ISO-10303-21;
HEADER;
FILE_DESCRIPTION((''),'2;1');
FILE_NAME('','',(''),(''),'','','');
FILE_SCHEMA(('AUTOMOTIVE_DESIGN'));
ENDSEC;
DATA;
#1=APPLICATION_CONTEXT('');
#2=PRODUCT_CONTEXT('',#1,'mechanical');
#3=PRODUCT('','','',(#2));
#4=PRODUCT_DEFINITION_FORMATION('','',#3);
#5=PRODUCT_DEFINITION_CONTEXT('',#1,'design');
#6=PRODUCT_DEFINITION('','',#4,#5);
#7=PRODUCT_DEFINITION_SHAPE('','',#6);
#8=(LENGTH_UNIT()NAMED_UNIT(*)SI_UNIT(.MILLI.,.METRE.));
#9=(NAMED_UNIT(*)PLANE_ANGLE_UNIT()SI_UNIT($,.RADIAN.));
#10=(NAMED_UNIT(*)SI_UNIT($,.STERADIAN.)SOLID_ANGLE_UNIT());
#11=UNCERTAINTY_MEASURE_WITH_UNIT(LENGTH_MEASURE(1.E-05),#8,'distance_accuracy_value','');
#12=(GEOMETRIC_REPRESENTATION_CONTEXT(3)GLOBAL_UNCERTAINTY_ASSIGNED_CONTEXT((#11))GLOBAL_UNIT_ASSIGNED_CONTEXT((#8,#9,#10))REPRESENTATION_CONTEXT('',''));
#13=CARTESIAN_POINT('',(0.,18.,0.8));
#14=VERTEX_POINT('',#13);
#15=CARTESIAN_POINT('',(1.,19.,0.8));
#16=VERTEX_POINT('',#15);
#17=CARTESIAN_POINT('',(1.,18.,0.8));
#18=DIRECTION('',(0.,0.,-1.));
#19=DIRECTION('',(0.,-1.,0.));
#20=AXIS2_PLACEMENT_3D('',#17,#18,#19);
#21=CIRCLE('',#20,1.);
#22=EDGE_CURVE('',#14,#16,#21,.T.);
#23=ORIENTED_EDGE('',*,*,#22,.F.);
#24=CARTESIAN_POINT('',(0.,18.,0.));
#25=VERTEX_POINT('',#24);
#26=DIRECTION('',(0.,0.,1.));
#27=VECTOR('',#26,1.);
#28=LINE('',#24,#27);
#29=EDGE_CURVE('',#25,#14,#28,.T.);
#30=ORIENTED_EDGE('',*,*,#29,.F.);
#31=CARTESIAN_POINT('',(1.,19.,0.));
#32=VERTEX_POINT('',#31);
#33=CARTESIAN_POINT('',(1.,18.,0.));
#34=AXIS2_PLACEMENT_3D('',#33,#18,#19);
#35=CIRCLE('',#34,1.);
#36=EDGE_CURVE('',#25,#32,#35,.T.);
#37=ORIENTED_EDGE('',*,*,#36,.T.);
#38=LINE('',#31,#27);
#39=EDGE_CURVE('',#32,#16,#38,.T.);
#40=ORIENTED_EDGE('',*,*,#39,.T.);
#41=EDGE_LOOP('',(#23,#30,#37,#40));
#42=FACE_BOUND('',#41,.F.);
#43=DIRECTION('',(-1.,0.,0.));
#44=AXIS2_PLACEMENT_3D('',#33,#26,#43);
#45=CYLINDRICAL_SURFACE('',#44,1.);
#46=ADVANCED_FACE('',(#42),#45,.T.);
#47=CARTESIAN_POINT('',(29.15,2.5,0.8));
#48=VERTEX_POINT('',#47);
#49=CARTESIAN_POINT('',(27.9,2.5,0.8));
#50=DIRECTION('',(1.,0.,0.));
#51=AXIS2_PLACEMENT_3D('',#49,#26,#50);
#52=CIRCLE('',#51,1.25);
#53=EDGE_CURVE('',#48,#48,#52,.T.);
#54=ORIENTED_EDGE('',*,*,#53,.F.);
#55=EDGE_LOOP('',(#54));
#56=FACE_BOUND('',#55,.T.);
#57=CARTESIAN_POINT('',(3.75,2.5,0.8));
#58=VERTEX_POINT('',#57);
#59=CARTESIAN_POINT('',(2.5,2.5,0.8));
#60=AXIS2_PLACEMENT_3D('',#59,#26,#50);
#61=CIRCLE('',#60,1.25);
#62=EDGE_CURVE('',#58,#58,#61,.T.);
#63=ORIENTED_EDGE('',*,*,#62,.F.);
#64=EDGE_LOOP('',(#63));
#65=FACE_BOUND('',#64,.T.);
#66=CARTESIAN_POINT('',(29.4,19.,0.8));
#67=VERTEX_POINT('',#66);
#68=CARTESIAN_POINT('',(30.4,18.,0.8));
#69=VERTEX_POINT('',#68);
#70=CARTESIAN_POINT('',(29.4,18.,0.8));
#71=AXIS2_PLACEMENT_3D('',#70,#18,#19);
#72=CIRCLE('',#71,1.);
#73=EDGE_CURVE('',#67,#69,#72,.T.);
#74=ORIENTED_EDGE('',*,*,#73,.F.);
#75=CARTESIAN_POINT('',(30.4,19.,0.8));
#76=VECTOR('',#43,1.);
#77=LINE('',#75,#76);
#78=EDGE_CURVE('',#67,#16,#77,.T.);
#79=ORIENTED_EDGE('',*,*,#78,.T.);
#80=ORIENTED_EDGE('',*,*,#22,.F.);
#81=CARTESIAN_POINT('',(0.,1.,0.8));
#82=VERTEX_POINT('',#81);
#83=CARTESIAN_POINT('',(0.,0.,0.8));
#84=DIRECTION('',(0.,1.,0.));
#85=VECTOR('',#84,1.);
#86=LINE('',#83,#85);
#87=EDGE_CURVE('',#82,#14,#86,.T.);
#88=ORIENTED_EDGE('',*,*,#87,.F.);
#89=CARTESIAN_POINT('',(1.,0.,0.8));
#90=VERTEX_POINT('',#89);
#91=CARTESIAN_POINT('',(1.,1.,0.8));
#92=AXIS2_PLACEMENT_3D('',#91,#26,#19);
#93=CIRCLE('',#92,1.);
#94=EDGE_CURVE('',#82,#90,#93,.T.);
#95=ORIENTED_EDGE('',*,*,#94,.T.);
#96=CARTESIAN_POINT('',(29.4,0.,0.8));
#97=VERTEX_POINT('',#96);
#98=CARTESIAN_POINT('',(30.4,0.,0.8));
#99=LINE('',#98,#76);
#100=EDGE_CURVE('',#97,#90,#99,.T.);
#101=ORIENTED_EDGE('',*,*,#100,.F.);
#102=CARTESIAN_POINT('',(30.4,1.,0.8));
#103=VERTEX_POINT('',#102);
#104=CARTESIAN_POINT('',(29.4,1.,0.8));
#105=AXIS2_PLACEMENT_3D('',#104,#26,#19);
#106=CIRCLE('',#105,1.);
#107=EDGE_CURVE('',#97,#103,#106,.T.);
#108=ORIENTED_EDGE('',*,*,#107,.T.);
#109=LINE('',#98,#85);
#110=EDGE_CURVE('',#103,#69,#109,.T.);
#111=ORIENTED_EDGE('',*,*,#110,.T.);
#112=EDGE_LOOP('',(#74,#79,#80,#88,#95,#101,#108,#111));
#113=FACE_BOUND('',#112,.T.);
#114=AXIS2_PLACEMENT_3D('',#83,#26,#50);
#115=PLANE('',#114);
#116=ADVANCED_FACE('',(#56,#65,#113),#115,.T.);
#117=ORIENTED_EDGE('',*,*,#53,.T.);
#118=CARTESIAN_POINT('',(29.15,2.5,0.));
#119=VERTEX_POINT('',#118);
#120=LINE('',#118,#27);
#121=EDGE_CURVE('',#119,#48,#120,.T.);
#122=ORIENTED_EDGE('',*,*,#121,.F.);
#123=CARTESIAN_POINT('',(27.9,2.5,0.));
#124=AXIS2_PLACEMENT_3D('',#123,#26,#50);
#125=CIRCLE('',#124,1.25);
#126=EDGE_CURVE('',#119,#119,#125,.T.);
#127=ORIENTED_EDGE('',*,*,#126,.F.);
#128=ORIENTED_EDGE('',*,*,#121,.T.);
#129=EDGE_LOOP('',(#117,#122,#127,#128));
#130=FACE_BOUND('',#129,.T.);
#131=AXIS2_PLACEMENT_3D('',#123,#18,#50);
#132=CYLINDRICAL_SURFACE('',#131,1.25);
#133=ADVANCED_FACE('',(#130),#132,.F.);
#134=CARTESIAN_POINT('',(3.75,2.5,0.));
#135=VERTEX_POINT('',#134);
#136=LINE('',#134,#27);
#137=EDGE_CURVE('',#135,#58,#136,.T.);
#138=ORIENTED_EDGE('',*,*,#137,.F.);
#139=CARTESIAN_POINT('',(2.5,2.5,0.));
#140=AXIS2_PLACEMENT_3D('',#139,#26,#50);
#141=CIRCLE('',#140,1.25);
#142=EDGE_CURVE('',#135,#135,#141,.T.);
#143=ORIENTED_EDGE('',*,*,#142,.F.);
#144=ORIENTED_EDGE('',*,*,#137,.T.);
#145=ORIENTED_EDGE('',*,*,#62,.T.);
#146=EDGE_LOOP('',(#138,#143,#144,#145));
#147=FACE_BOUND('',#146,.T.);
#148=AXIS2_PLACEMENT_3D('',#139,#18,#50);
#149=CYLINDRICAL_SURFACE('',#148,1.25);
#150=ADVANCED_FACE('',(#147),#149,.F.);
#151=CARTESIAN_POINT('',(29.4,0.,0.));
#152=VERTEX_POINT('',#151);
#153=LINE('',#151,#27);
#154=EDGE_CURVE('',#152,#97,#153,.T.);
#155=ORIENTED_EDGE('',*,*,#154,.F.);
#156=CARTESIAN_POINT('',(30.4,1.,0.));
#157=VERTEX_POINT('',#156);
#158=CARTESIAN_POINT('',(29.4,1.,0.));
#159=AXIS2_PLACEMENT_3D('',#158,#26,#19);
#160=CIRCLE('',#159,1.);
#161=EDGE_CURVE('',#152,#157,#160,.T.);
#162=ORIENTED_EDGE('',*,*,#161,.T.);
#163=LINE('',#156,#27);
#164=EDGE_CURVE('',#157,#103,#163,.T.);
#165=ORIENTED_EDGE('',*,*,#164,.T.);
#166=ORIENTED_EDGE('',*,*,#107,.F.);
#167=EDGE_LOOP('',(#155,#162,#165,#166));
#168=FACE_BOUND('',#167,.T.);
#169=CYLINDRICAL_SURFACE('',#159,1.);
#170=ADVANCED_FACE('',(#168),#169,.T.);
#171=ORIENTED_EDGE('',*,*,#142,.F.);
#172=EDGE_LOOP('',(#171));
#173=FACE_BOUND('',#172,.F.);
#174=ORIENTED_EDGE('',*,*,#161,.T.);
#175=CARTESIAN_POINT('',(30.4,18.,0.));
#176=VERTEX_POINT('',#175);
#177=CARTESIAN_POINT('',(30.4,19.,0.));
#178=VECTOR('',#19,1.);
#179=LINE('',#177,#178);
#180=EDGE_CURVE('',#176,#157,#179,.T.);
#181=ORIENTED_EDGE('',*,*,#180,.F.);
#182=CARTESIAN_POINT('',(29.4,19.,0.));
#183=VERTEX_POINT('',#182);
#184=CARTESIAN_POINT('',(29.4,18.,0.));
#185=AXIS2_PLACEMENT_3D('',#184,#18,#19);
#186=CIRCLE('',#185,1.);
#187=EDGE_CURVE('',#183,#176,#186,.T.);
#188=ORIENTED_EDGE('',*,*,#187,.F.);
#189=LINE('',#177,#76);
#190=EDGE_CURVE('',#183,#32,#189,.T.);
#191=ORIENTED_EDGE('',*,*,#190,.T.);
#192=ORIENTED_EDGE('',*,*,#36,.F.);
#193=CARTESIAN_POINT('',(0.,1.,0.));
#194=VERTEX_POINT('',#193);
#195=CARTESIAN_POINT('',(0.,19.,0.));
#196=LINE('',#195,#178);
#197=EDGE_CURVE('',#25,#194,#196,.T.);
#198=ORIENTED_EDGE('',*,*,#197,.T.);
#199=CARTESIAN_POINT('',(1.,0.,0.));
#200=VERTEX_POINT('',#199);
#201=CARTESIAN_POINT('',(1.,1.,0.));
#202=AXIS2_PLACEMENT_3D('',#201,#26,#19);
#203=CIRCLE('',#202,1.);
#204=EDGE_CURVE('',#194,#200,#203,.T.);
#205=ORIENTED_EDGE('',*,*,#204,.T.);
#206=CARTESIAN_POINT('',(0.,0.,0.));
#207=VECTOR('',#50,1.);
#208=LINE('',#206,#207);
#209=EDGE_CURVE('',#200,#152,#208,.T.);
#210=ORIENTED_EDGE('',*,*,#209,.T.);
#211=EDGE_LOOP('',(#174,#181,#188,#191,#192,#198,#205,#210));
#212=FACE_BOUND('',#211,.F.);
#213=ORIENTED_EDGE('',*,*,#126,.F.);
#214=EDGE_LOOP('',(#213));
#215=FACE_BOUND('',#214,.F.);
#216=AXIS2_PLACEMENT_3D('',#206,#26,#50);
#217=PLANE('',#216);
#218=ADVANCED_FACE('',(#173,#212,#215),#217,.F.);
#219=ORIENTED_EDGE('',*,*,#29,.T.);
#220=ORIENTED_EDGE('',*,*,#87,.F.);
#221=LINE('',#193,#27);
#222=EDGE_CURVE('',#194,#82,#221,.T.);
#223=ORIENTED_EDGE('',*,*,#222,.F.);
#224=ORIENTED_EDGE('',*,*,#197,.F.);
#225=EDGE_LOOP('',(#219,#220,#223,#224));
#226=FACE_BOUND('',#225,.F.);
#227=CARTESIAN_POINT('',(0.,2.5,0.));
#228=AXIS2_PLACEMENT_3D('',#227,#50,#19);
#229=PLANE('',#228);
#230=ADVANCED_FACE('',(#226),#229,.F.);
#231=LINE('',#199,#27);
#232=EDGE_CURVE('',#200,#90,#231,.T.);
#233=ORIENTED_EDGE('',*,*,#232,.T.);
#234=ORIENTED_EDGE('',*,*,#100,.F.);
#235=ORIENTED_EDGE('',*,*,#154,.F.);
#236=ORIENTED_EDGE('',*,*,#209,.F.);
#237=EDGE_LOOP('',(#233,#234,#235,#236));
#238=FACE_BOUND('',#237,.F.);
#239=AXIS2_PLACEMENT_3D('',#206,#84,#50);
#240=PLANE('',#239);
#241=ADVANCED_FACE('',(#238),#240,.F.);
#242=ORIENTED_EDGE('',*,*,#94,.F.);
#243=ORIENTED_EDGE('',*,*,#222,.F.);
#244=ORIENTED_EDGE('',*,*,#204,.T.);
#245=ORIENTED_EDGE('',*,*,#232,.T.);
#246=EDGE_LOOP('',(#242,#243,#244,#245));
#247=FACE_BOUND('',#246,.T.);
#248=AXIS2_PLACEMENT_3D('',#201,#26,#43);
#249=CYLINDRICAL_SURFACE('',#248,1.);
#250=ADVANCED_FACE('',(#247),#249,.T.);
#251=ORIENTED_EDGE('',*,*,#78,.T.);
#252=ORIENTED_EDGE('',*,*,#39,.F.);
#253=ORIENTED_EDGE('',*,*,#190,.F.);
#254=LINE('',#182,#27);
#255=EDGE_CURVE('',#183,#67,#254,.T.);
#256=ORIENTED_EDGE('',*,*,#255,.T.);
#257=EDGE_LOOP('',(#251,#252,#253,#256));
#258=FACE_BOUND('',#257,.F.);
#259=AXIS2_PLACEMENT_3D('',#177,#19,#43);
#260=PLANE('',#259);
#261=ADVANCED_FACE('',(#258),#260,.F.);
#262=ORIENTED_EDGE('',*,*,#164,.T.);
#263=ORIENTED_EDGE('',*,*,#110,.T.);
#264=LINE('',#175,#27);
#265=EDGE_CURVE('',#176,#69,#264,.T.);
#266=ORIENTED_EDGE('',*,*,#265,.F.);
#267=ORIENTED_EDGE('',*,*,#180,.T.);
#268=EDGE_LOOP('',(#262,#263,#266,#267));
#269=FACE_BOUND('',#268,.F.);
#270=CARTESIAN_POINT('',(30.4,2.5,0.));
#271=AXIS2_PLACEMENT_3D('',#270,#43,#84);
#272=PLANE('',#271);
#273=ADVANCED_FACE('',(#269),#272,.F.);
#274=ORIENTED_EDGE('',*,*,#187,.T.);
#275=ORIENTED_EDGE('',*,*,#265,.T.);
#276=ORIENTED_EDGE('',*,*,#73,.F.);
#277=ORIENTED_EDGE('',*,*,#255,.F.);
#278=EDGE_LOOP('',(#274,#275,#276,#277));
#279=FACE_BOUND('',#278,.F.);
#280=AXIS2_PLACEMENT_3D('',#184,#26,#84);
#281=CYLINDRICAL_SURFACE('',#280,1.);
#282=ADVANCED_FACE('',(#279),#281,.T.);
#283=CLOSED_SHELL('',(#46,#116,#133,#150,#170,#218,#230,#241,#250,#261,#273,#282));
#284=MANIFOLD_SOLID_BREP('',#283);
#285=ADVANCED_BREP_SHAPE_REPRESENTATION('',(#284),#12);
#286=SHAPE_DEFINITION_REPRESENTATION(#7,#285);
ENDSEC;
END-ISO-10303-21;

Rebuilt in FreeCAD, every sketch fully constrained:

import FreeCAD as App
import Part
import Sketcher


def edges_at(feature, points):
    """Names of the edges that pass closest to the given points."""
    edges = feature.Shape.Edges
    near = lambda p: min(range(len(edges)), key=lambda i: edges[i].distToShape(Part.Vertex(*p))[0])
    return sorted({f"Edge{near(p) + 1}" for p in points})


def add_polygon(sketch, points):
    """Adds a closed chain of lines whose ends are joined by coincident constraints."""
    first, n = sketch.GeometryCount, len(points)
    for a, b in zip(points, points[1:] + points[:1]):
        sketch.addGeometry(Part.LineSegment(App.Vector(*a, 0), App.Vector(*b, 0)), False)
    for i in range(n):
        sketch.addConstraint(Sketcher.Constraint("Coincident", first + i, 2, first + (i + 1) % n, 1))

doc = App.newDocument("Part")
body = doc.addObject("PartDesign::Body", "Body")

# Sketch on XY plane
sketch1 = body.newObject("Sketcher::SketchObject", "Sketch")
sketch1.AttachmentSupport = (doc.getObject("XY_Plane"), [""])
sketch1.MapMode = "FlatFace"
add_polygon(sketch1, [(0, 0), (30.4, 0), (30.4, 19), (0, 19)])  # lines 0-3
sketch1.addGeometry(Part.Circle(App.Vector(2.5, 2.5, 0), App.Vector(0, 0, 1), 1.25), False)  # 4
sketch1.addGeometry(Part.Circle(App.Vector(27.9, 2.5, 0), App.Vector(0, 0, 1), 1.25), False)  # 5
sketch1.addConstraint(Sketcher.Constraint("Horizontal", 0))
sketch1.addConstraint(Sketcher.Constraint("Vertical", 1))
sketch1.addConstraint(Sketcher.Constraint("Horizontal", 2))
sketch1.addConstraint(Sketcher.Constraint("Vertical", 3))
sketch1.addConstraint(Sketcher.Constraint("Coincident", 3, 2, -1, 1))
sketch1.addConstraint(Sketcher.Constraint("Equal", 4, 5))
sketch1.addConstraint(Sketcher.Constraint("Horizontal", 4, 3, 5, 3))
sketch1.addConstraint(Sketcher.Constraint("Diameter", 4, 2.5))
sketch1.addConstraint(Sketcher.Constraint("DistanceY", 1, 1, 1, 2, 19.0))
sketch1.addConstraint(Sketcher.Constraint("DistanceX", 0, 1, 0, 2, 30.4))
sketch1.addConstraint(Sketcher.Constraint("DistanceX", -1, 1, 4, 3, 2.5))
sketch1.addConstraint(Sketcher.Constraint("DistanceY", -1, 1, 4, 3, 2.5))
sketch1.addConstraint(Sketcher.Constraint("DistanceX", 5, 3, 0, 2, 2.5))
pad1 = body.newObject("PartDesign::Pad", "Pad")
pad1.Profile = sketch1
pad1.Length = 0.8
doc.recompute()

fillet = body.newObject("PartDesign::Fillet", "Fillet")
fillet.Base = (pad1, edges_at(pad1, [
    (30.4, 0, 0.4),
    (0, 0, 0.4),
    (0, 19, 0.4),
    (30.4, 19, 0.4),
]))
fillet.Radius = 1

doc.recompute()
